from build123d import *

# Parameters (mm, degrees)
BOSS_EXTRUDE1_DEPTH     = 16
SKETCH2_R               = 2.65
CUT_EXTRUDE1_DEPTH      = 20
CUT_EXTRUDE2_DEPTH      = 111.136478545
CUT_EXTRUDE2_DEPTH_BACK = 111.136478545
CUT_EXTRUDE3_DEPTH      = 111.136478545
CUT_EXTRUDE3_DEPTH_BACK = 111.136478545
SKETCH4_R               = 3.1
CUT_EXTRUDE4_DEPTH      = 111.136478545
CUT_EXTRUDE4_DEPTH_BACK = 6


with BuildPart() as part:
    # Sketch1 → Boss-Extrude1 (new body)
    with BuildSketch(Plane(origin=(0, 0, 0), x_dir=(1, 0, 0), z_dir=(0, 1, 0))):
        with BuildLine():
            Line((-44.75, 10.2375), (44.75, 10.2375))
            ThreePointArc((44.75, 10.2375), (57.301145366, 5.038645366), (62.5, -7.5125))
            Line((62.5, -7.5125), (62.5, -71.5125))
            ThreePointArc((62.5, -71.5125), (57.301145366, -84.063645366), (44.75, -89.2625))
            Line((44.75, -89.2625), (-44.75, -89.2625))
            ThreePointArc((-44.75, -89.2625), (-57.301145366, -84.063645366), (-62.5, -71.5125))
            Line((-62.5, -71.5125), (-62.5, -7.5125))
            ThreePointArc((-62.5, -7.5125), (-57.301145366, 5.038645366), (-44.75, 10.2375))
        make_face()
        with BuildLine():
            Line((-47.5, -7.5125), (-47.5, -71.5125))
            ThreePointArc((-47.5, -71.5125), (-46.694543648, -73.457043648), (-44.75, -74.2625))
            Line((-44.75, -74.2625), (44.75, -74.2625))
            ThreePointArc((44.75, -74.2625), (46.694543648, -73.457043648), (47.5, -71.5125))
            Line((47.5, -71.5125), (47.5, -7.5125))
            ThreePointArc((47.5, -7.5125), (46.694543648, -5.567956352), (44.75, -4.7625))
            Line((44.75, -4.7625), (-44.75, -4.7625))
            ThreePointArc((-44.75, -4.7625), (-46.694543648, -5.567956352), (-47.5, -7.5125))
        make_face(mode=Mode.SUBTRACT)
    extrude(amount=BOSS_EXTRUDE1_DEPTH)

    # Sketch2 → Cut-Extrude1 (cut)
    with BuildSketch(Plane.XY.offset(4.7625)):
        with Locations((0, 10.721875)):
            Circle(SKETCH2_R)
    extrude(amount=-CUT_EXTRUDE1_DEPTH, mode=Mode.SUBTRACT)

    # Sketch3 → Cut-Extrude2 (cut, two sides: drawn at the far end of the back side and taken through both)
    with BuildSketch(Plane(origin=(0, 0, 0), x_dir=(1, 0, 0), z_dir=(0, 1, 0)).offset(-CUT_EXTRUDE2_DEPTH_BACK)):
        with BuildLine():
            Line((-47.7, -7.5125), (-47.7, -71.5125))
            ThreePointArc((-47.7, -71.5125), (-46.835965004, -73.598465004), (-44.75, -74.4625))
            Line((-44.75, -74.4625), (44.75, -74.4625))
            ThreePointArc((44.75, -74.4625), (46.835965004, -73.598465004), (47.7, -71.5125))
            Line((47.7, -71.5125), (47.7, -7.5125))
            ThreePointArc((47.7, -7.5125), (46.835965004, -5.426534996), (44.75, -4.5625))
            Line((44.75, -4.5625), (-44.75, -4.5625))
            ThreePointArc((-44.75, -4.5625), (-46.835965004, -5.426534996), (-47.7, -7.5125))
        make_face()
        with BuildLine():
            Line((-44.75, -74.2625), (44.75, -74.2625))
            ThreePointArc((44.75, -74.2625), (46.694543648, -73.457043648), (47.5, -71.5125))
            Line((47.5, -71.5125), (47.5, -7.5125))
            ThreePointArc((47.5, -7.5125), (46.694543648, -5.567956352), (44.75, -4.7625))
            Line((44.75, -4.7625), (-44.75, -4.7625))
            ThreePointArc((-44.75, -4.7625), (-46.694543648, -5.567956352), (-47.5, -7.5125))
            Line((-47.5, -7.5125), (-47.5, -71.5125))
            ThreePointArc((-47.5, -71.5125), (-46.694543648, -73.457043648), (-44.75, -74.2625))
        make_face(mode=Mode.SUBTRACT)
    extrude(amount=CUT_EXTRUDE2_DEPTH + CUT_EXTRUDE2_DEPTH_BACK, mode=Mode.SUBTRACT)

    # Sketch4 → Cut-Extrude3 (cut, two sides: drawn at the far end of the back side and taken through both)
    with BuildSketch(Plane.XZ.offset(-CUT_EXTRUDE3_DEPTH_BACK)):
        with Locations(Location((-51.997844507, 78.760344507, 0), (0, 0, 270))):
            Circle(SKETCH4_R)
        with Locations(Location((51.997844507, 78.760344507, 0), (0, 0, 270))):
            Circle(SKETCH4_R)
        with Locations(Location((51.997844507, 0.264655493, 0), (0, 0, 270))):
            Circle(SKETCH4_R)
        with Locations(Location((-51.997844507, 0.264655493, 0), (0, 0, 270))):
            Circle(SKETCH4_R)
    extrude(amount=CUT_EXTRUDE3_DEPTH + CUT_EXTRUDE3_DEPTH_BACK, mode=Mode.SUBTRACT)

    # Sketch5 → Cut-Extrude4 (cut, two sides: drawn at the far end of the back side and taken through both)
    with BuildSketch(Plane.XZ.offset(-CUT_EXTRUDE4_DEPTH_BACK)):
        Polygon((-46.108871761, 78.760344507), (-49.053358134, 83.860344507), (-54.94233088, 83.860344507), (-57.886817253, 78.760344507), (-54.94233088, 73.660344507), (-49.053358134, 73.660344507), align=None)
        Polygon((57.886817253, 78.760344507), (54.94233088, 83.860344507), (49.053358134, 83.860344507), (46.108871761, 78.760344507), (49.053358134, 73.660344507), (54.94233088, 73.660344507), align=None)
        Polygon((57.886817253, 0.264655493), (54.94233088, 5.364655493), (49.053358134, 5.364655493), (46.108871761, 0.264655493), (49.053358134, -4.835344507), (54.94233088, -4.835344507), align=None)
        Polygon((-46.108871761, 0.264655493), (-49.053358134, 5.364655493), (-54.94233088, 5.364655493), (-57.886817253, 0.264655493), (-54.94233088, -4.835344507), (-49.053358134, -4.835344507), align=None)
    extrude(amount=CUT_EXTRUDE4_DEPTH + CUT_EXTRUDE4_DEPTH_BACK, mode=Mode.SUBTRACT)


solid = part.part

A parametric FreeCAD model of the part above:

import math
import FreeCAD as App
import Part
import Sketcher
Q = App.Units.Quantity

doc = App.newDocument("Part")
body = doc.addObject("PartDesign::Body", "Body")

sketch1 = body.newObject("Sketcher::SketchObject", "Sketch")
sketch1.AttachmentSupport = (doc.getObject("XZ_Plane"), [""])
sketch1.MapMode = "FlatFace"
sketch1.addGeometry([
    Part.LineSegment(App.Vector(44.8, -10.2, 0), App.Vector(-44.8, -10.2, 0)),
    Part.ArcOfCircle(Part.Circle(App.Vector(-44.8, 7.5, 0), App.Vector(0, 0, 1), 17.8), math.radians(180), math.radians(270)),
    Part.LineSegment(App.Vector(-62.5, 7.5, 0), App.Vector(-62.5, 71.5, 0)),
    Part.ArcOfCircle(Part.Circle(App.Vector(-44.8, 71.5, 0), App.Vector(0, 0, 1), 17.8), math.radians(90), math.radians(180)),
    Part.LineSegment(App.Vector(-44.8, 89.3, 0), App.Vector(44.8, 89.3, 0)),
    Part.ArcOfCircle(Part.Circle(App.Vector(44.8, 71.5, 0), App.Vector(0, 0, 1), 17.8), math.radians(0), math.radians(90)),
    Part.LineSegment(App.Vector(62.5, 71.5, 0), App.Vector(62.5, 7.5, 0)),
    Part.ArcOfCircle(Part.Circle(App.Vector(44.8, 7.5, 0), App.Vector(0, 0, 1), 17.8), math.radians(-90), math.radians(0)),
    Part.ArcOfCircle(Part.Circle(App.Vector(-44.7, 7.5, 0), App.Vector(0, 0, 1), 2.8), math.radians(-180), math.radians(-90)),
    Part.LineSegment(App.Vector(-44.8, 4.8, 0), App.Vector(44.8, 4.8, 0)),
    Part.ArcOfCircle(Part.Circle(App.Vector(44.7, 7.5, 0), App.Vector(0, 0, 1), 2.8), math.radians(-90), math.radians(0)),
    Part.LineSegment(App.Vector(47.5, 7.5, 0), App.Vector(47.5, 71.5, 0)),
    Part.ArcOfCircle(Part.Circle(App.Vector(44.7, 71.5, 0), App.Vector(0, 0, 1), 2.8), math.radians(0), math.radians(90)),
    Part.LineSegment(App.Vector(44.8, 74.3, 0), App.Vector(-44.8, 74.3, 0)),
    Part.ArcOfCircle(Part.Circle(App.Vector(-44.7, 71.5, 0), App.Vector(0, 0, 1), 2.8), math.radians(90), math.radians(180)),
    Part.LineSegment(App.Vector(-47.5, 71.5, 0), App.Vector(-47.5, 7.5, 0)),
], False)
sketch1.addConstraint([
    Sketcher.Constraint("Tangent", 0, 2, 1, 2),
    Sketcher.Constraint("Tangent", 1, 1, 2, 1),
    Sketcher.Constraint("Tangent", 2, 2, 3, 2),
    Sketcher.Constraint("Tangent", 3, 1, 4, 1),
    Sketcher.Constraint("Tangent", 4, 2, 5, 2),
    Sketcher.Constraint("Tangent", 5, 1, 6, 1),
    Sketcher.Constraint("Tangent", 6, 2, 7, 2),
    Sketcher.Constraint("Tangent", 7, 1, 0, 1),
    Sketcher.Constraint("Tangent", 8, 2, 9, 1),
    Sketcher.Constraint("Tangent", 9, 2, 10, 1),
    Sketcher.Constraint("Tangent", 10, 2, 11, 1),
    Sketcher.Constraint("Tangent", 11, 2, 12, 1),
    Sketcher.Constraint("Tangent", 12, 2, 13, 1),
    Sketcher.Constraint("Tangent", 13, 2, 14, 1),
    Sketcher.Constraint("Tangent", 14, 2, 15, 1),
    Sketcher.Constraint("Tangent", 15, 2, 8, 1),
    Sketcher.Constraint("Horizontal", 0),
    Sketcher.Constraint("Vertical", 2),
    Sketcher.Constraint("Horizontal", 4),
    Sketcher.Constraint("Vertical", 6),
    Sketcher.Constraint("Horizontal", 9),
    Sketcher.Constraint("Vertical", 11),
    Sketcher.Constraint("Horizontal", 13),
    Sketcher.Constraint("Vertical", 15),
    Sketcher.Constraint("Coincident", 8, 3, 1, 3),
    Sketcher.Constraint("Coincident", 10, 3, 7, 3),
    Sketcher.Constraint("Coincident", 12, 3, 5, 3),
    Sketcher.Constraint("Equal", 1, 3),
    Sketcher.Constraint("Equal", 3, 5),
    Sketcher.Constraint("Equal", 5, 7),
    Sketcher.Constraint("Equal", 12, 14),
    Sketcher.Constraint("DistanceY", 2, 1, 2, 2, Q("64 mm")),
    Sketcher.Constraint("Radius", 1, Q("17.75 mm")),
    Sketcher.Constraint("Radius", 8, Q("2.75 mm")),
    Sketcher.Constraint("DistanceX", 0, 2, 0, 1, Q("89.5 mm")),
    Sketcher.Constraint("DistanceX", 1, 1, -1, 1, Q("62.5 mm")),
    Sketcher.Constraint("DistanceY", -1, 1, 1, 3, Q("7.5125 mm")),
])
pad1 = body.newObject("PartDesign::Pad", "Pad")
pad1.Profile = sketch1
pad1.Length = 16
pad1.Reversed = True

sketch2 = body.newObject("Sketcher::SketchObject", "Sketch001")
sketch2.AttachmentSupport = (doc.getObject("XY_Plane"), [""])
sketch2.MapMode = "FlatFace"
sketch2.AttachmentOffset = App.Placement(App.Vector(0, 0, 4.7625), App.Rotation())
sketch2.addGeometry(Part.Circle(App.Vector(0, 10.7, 0), App.Vector(0, 0, 1), 2.6), False)
sketch2.addConstraint([
    Sketcher.Constraint("PointOnObject", 0, 3, -2),
    Sketcher.Constraint("Diameter", 0, Q("5.3 mm")),
    Sketcher.Constraint("DistanceY", -1, 1, 0, 3, Q("10.721875 mm")),
])
pocket1 = body.newObject("PartDesign::Pocket", "Pocket")
pocket1.Profile = sketch2
pocket1.Length = 20

sketch3 = body.newObject("Sketcher::SketchObject", "Sketch002")
sketch3.AttachmentSupport = (doc.getObject("XZ_Plane"), [""])
sketch3.MapMode = "FlatFace"
sketch3.addGeometry([
    Part.LineSegment(App.Vector(-47.7, 7.5, 0), App.Vector(-47.7, 71.5, 0)),
    Part.ArcOfCircle(Part.Circle(App.Vector(-44.7, 71.5, 0), App.Vector(0, 0, 1), 3), math.radians(90), math.radians(180)),
    Part.LineSegment(App.Vector(-44.8, 74.5, 0), App.Vector(44.8, 74.5, 0)),
    Part.ArcOfCircle(Part.Circle(App.Vector(44.7, 71.5, 0), App.Vector(0, 0, 1), 3), math.radians(0), math.radians(90)),
    Part.LineSegment(App.Vector(47.7, 71.5, 0), App.Vector(47.7, 7.5, 0)),
    Part.ArcOfCircle(Part.Circle(App.Vector(44.7, 7.5, 0), App.Vector(0, 0, 1), 3), math.radians(-90), math.radians(0)),
    Part.LineSegment(App.Vector(44.8, 4.6, 0), App.Vector(-44.8, 4.6, 0)),
    Part.ArcOfCircle(Part.Circle(App.Vector(-44.7, 7.5, 0), App.Vector(0, 0, 1), 3), math.radians(-180), math.radians(-90)),
    Part.LineSegment(App.Vector(44.8, 74.3, 0), App.Vector(-44.8, 74.3, 0)),
    Part.ArcOfCircle(Part.Circle(App.Vector(-44.7, 71.5, 0), App.Vector(0, 0, 1), 2.8), math.radians(90), math.radians(180)),
    Part.LineSegment(App.Vector(-47.5, 71.5, 0), App.Vector(-47.5, 7.5, 0)),
    Part.ArcOfCircle(Part.Circle(App.Vector(-44.7, 7.5, 0), App.Vector(0, 0, 1), 2.8), math.radians(-180), math.radians(-90)),
    Part.LineSegment(App.Vector(-44.8, 4.8, 0), App.Vector(44.8, 4.8, 0)),
    Part.ArcOfCircle(Part.Circle(App.Vector(44.7, 7.5, 0), App.Vector(0, 0, 1), 2.8), math.radians(-90), math.radians(0)),
    Part.LineSegment(App.Vector(47.5, 7.5, 0), App.Vector(47.5, 71.5, 0)),
    Part.ArcOfCircle(Part.Circle(App.Vector(44.7, 71.5, 0), App.Vector(0, 0, 1), 2.8), math.radians(0), math.radians(90)),
], False)
sketch3.addConstraint([
    Sketcher.Constraint("Tangent", 0, 2, 1, 2),
    Sketcher.Constraint("Tangent", 1, 1, 2, 1),
    Sketcher.Constraint("Tangent", 2, 2, 3, 2),
    Sketcher.Constraint("Tangent", 3, 1, 4, 1),
    Sketcher.Constraint("Tangent", 4, 2, 5, 2),
    Sketcher.Constraint("Tangent", 5, 1, 6, 1),
    Sketcher.Constraint("Tangent", 6, 2, 7, 2),
    Sketcher.Constraint("Tangent", 7, 1, 0, 1),
    Sketcher.Constraint("Tangent", 8, 2, 9, 1),
    Sketcher.Constraint("Tangent", 9, 2, 10, 1),
    Sketcher.Constraint("Tangent", 10, 2, 11, 1),
    Sketcher.Constraint("Tangent", 11, 2, 12, 1),
    Sketcher.Constraint("Tangent", 12, 2, 13, 1),
    Sketcher.Constraint("Tangent", 13, 2, 14, 1),
    Sketcher.Constraint("Tangent", 14, 2, 15, 1),
    Sketcher.Constraint("Tangent", 15, 2, 8, 1),
    Sketcher.Constraint("Vertical", 0),
    Sketcher.Constraint("Horizontal", 2),
    Sketcher.Constraint("Vertical", 4),
    Sketcher.Constraint("Horizontal", 6),
    Sketcher.Constraint("Horizontal", 8),
    Sketcher.Constraint("Vertical", 10),
    Sketcher.Constraint("Horizontal", 12),
    Sketcher.Constraint("Vertical", 14),
    Sketcher.Constraint("Coincident", 9, 3, 1, 3),
    Sketcher.Constraint("Coincident", 11, 3, 7, 3),
    Sketcher.Constraint("Coincident", 13, 3, 5, 3),
    Sketcher.Constraint("Equal", 1, 3),
    Sketcher.Constraint("Equal", 3, 5),
    Sketcher.Constraint("Equal", 5, 7),
    Sketcher.Constraint("Equal", 13, 15),
    Sketcher.Constraint("DistanceY", 0, 1, 0, 2, Q("64 mm")),
    Sketcher.Constraint("Radius", 1, Q("2.95 mm")),
    Sketcher.Constraint("Radius", 9, Q("2.75 mm")),
    Sketcher.Constraint("DistanceX", 2, 1, 2, 2, Q("89.5 mm")),
    Sketcher.Constraint("DistanceX", 0, 2, -1, 1, Q("47.7 mm")),
    Sketcher.Constraint("DistanceY", -1, 1, 1, 3, Q("71.5125 mm")),
])
pocket2 = body.newObject("PartDesign::Pocket", "Pocket001")
pocket2.Profile = sketch3
pocket2.Type = "ThroughAll"
pocket2.Midplane = True

sketch4 = body.newObject("Sketcher::SketchObject", "Sketch003")
sketch4.AttachmentSupport = (doc.getObject("XZ_Plane"), [""])
sketch4.MapMode = "FlatFace"
sketch4.addGeometry([
    Part.Circle(App.Vector(-52, 78.8, 0), App.Vector(0, 0, 1), 3.1),
    Part.Circle(App.Vector(52, 78.8, 0), App.Vector(0, 0, 1), 3.1),
    Part.Circle(App.Vector(52, 0.3, 0), App.Vector(0, 0, 1), 3.1),
    Part.Circle(App.Vector(-52, 0.3, 0), App.Vector(0, 0, 1), 3.1),
], False)
sketch4.addConstraint([
    Sketcher.Constraint("Equal", 0, 1),
    Sketcher.Constraint("Equal", 1, 2),
    Sketcher.Constraint("Equal", 2, 3),
    Sketcher.Constraint("Symmetric", 0, 3, 1, 3, -2),
    Sketcher.Constraint("Symmetric", 2, 3, 3, 3, -2),
    Sketcher.Constraint("Vertical", 1, 3, 2, 3),
    Sketcher.Constraint("Diameter", 0, Q("6.2 mm")),
    Sketcher.Constraint("DistanceX", 0, 3, 1, 3, Q("103.995689 mm")),
    Sketcher.Constraint("DistanceY", 2, 3, 1, 3, Q("78.495689 mm")),
    Sketcher.Constraint("DistanceY", -1, 1, 0, 3, Q("78.760345 mm")),
])
pocket3 = body.newObject("PartDesign::Pocket", "Pocket002")
pocket3.Profile = sketch4
pocket3.Type = "ThroughAll"
pocket3.Midplane = True

sketch5 = body.newObject("Sketcher::SketchObject", "Sketch004")
sketch5.AttachmentSupport = (doc.getObject("XZ_Plane"), [""])
sketch5.MapMode = "FlatFace"
sketch5.addGeometry([
    Part.LineSegment(App.Vector(-46, 79, 0), App.Vector(-49, 84, 0)),
    Part.LineSegment(App.Vector(-49, 84, 0), App.Vector(-55, 84, 0)),
    Part.LineSegment(App.Vector(-55, 84, 0), App.Vector(-58, 79, 0)),
    Part.LineSegment(App.Vector(-58, 79, 0), App.Vector(-55, 74, 0)),
    Part.LineSegment(App.Vector(-55, 74, 0), App.Vector(-49, 74, 0)),
    Part.LineSegment(App.Vector(-49, 74, 0), App.Vector(-46, 79, 0)),
    Part.LineSegment(App.Vector(58, 79, 0), App.Vector(55, 84, 0)),
    Part.LineSegment(App.Vector(55, 84, 0), App.Vector(49, 84, 0)),
    Part.LineSegment(App.Vector(49, 84, 0), App.Vector(46, 79, 0)),
    Part.LineSegment(App.Vector(46, 79, 0), App.Vector(49, 74, 0)),
    Part.LineSegment(App.Vector(49, 74, 0), App.Vector(55, 74, 0)),
    Part.LineSegment(App.Vector(55, 74, 0), App.Vector(58, 79, 0)),
    Part.LineSegment(App.Vector(58, 0, 0), App.Vector(55, 5, 0)),
    Part.LineSegment(App.Vector(55, 5, 0), App.Vector(49, 5, 0)),
    Part.LineSegment(App.Vector(49, 5, 0), App.Vector(46, 0, 0)),
    Part.LineSegment(App.Vector(46, 0, 0), App.Vector(49, -5, 0)),
    Part.LineSegment(App.Vector(49, -5, 0), App.Vector(55, -5, 0)),
    Part.LineSegment(App.Vector(55, -5, 0), App.Vector(58, 0, 0)),
    Part.LineSegment(App.Vector(-46, 0, 0), App.Vector(-49, 5, 0)),
    Part.LineSegment(App.Vector(-49, 5, 0), App.Vector(-55, 5, 0)),
    Part.LineSegment(App.Vector(-55, 5, 0), App.Vector(-58, 0, 0)),
    Part.LineSegment(App.Vector(-58, 0, 0), App.Vector(-55, -5, 0)),
    Part.LineSegment(App.Vector(-55, -5, 0), App.Vector(-49, -5, 0)),
    Part.LineSegment(App.Vector(-49, -5, 0), App.Vector(-46, 0, 0)),
], False)
sketch5.addConstraint([
    Sketcher.Constraint("Coincident", 0, 2, 1, 1),
    Sketcher.Constraint("Coincident", 1, 2, 2, 1),
    Sketcher.Constraint("Coincident", 2, 2, 3, 1),
    Sketcher.Constraint("Coincident", 3, 2, 4, 1),
    Sketcher.Constraint("Coincident", 4, 2, 5, 1),
    Sketcher.Constraint("Coincident", 5, 2, 0, 1),
    Sketcher.Constraint("Coincident", 6, 2, 7, 1),
    Sketcher.Constraint("Coincident", 7, 2, 8, 1),
    Sketcher.Constraint("Coincident", 8, 2, 9, 1),
    Sketcher.Constraint("Coincident", 9, 2, 10, 1),
    Sketcher.Constraint("Coincident", 10, 2, 11, 1),
    Sketcher.Constraint("Coincident", 11, 2, 6, 1),
    Sketcher.Constraint("Coincident", 12, 2, 13, 1),
    Sketcher.Constraint("Coincident", 13, 2, 14, 1),
    Sketcher.Constraint("Coincident", 14, 2, 15, 1),
    Sketcher.Constraint("Coincident", 15, 2, 16, 1),
    Sketcher.Constraint("Coincident", 16, 2, 17, 1),
    Sketcher.Constraint("Coincident", 17, 2, 12, 1),
    Sketcher.Constraint("Coincident", 18, 2, 19, 1),
    Sketcher.Constraint("Coincident", 19, 2, 20, 1),
    Sketcher.Constraint("Coincident", 20, 2, 21, 1),
    Sketcher.Constraint("Coincident", 21, 2, 22, 1),
    Sketcher.Constraint("Coincident", 22, 2, 23, 1),
    Sketcher.Constraint("Coincident", 23, 2, 18, 1),
    Sketcher.Constraint("Horizontal", 1),
    Sketcher.Constraint("Horizontal", 4),
    Sketcher.Constraint("Horizontal", 7),
    Sketcher.Constraint("Horizontal", 10),
    Sketcher.Constraint("Horizontal", 13),
    Sketcher.Constraint("Horizontal", 16),
    Sketcher.Constraint("Horizontal", 19),
    Sketcher.Constraint("Horizontal", 22),
    Sketcher.Constraint("Symmetric", 1, 2, 6, 2, -2),
    Sketcher.Constraint("Symmetric", 5, 2, 8, 2, -2),
    Sketcher.Constraint("Symmetric", 4, 2, 9, 2, -2),
    Sketcher.Constraint("Symmetric", 2, 2, 11, 2, -2),
    Sketcher.Constraint("Symmetric", 13, 2, 18, 2, -2),
    Sketcher.Constraint("Symmetric", 17, 2, 20, 2, -2),
    Sketcher.Constraint("Symmetric", 16, 2, 21, 2, -2),
    Sketcher.Constraint("Symmetric", 14, 2, 23, 2, -2),
    Sketcher.Constraint("Parallel", 0, 3),
    Sketcher.Constraint("Parallel", 2, 5),
    Sketcher.Constraint("Parallel", 3, 6),
    Sketcher.Constraint("Parallel", 5, 8),
    Sketcher.Constraint("Parallel", 8, 11),
    Sketcher.Constraint("Parallel", 9, 12),
    Sketcher.Constraint("Parallel", 11, 14),
    Sketcher.Constraint("Parallel", 12, 15),
    Sketcher.Constraint("Parallel", 14, 17),
    Sketcher.Constraint("Parallel", 17, 20),
    Sketcher.Constraint("Parallel", 20, 23),
    Sketcher.Constraint("Horizontal", 2, 2, 5, 2),
    Sketcher.Constraint("Horizontal", 14, 2, 17, 2),
    Sketcher.Constraint("Vertical", 1, 2, 3, 2),
    Sketcher.Constraint("Vertical", 10, 2, 12, 2),
    Sketcher.Constraint("Vertical", 9, 2, 13, 2),
    Sketcher.Constraint("Vertical", 8, 2, 14, 2),
    Sketcher.Constraint("Vertical", 13, 2, 15, 2),
    Sketcher.Constraint("Angle", 0, Q("120 deg")),
    Sketcher.Constraint("DistanceY", 2, 2, 1, 2, Q("5.1 mm")),
    Sketcher.Constraint("DistanceX", 1, 2, 1, 1, Q("5.888973 mm")),
    Sketcher.Constraint("DistanceX", 0, 2, -1, 1, Q("49.053358 mm")),
    Sketcher.Constraint("DistanceY", 12, 2, 10, 2, Q("68.295689 mm")),
    Sketcher.Constraint("DistanceY", -1, 1, 0, 2, Q("83.860345 mm")),
])
pocket4 = body.newObject("PartDesign::Pocket", "Pocket003")
pocket4.Profile = sketch5
pocket4.Type = "TwoLengths"
pocket4.Length = 111.136479
pocket4.Length2 = 6
pocket4.Reversed = True

doc.recompute()
